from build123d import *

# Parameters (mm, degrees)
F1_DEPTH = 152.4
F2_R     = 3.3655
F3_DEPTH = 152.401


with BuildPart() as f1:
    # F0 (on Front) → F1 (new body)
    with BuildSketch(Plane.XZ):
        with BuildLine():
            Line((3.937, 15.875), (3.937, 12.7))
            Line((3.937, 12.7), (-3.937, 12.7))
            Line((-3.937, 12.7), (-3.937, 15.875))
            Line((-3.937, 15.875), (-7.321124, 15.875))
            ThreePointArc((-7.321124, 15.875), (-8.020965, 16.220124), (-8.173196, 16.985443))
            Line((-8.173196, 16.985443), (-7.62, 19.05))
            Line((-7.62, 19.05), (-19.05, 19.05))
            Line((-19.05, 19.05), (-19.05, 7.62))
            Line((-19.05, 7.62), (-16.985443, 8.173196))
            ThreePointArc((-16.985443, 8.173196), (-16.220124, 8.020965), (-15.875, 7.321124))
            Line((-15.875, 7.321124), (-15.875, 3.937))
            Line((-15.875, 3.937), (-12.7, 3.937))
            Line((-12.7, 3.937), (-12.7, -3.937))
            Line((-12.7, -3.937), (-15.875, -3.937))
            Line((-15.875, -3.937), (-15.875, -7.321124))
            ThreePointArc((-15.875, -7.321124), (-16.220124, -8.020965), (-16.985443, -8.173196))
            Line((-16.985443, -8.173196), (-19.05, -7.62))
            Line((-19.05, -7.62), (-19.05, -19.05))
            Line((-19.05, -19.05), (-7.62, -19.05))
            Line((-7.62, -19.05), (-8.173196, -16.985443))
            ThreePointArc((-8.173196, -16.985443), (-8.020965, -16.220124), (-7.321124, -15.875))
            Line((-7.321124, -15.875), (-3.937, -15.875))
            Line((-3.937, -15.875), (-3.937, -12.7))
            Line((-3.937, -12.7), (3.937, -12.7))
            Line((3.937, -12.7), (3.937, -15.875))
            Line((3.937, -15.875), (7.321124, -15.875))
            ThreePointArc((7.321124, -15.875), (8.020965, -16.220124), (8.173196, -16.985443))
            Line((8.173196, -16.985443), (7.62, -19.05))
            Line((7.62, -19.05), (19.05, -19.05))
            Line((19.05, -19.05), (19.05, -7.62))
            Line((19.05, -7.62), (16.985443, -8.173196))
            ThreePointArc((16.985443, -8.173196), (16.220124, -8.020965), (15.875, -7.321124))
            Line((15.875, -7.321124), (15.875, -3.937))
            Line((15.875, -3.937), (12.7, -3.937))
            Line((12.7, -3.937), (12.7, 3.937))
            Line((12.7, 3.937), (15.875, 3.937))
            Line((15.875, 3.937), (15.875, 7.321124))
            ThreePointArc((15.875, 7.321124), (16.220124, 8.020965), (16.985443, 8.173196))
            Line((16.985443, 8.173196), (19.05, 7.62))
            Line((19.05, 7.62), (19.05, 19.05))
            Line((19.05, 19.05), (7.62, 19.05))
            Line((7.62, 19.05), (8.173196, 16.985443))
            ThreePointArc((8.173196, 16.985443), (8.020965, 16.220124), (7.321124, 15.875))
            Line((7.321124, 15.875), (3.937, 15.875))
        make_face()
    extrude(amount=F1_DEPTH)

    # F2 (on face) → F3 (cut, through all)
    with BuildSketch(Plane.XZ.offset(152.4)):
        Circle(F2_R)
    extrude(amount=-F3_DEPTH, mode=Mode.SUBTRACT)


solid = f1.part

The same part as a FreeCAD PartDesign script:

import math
import FreeCAD as App
import Part
import Sketcher
from FreeCAD import Vector
Q = App.Units.Quantity

doc = App.newDocument("Part")
body = doc.addObject("PartDesign::Body", "Body")

# Sketch on XZ plane
sketch1 = body.newObject("Sketcher::SketchObject", "Sketch")
sketch1.AttachmentSupport = (doc.getObject("XZ_Plane"), [""])
sketch1.MapMode = "FlatFace"
sketch1.addGeometry([
    Part.LineSegment(Vector(3.9, 15.9, 0), Vector(3.9, 12.7, 0)),  # 0
    Part.LineSegment(Vector(3.9, 12.7, 0), Vector(-3.9, 12.7, 0)),  # 1
    Part.LineSegment(Vector(-3.9, 12.7, 0), Vector(-3.9, 15.9, 0)),  # 2
    Part.LineSegment(Vector(-3.9, 15.9, 0), Vector(-7.3, 15.9, 0)),  # 3
    Part.ArcOfCircle(Part.Circle(Vector(-7.3, 16.8, 0), Vector(0, 0, 1), 0.9), math.radians(165), math.radians(270)),  # 4
    Part.LineSegment(Vector(-8.2, 17, 0), Vector(-7.6, 19.1, 0)),  # 5
    Part.LineSegment(Vector(-7.6, 19.1, 0), Vector(-19.1, 19.1, 0)),  # 6
    Part.LineSegment(Vector(-19.1, 19.1, 0), Vector(-19.1, 7.6, 0)),  # 7
    Part.LineSegment(Vector(-19.1, 7.6, 0), Vector(-17, 8.2, 0)),  # 8
    Part.ArcOfCircle(Part.Circle(Vector(-16.8, 7.3, 0), Vector(0, 0, 1), 0.9), math.radians(0), math.radians(105)),  # 9
    Part.LineSegment(Vector(-15.9, 7.3, 0), Vector(-15.9, 3.9, 0)),  # 10
    Part.LineSegment(Vector(-15.9, 3.9, 0), Vector(-12.7, 3.9, 0)),  # 11
    Part.LineSegment(Vector(-12.7, 3.9, 0), Vector(-12.7, -3.9, 0)),  # 12
    Part.LineSegment(Vector(-12.7, -3.9, 0), Vector(-15.9, -3.9, 0)),  # 13
    Part.LineSegment(Vector(-15.9, -3.9, 0), Vector(-15.9, -7.3, 0)),  # 14
    Part.ArcOfCircle(Part.Circle(Vector(-16.8, -7.3, 0), Vector(0, 0, 1), 0.9), math.radians(-105), math.radians(0)),  # 15
    Part.LineSegment(Vector(-17, -8.2, 0), Vector(-19.1, -7.6, 0)),  # 16
    Part.LineSegment(Vector(-19.1, -7.6, 0), Vector(-19.1, -19.1, 0)),  # 17
    Part.LineSegment(Vector(-19.1, -19.1, 0), Vector(-7.6, -19.1, 0)),  # 18
    Part.LineSegment(Vector(-7.6, -19.1, 0), Vector(-8.2, -17, 0)),  # 19
    Part.ArcOfCircle(Part.Circle(Vector(-7.3, -16.8, 0), Vector(0, 0, 1), 0.9), math.radians(90), math.radians(195)),  # 20
    Part.LineSegment(Vector(-7.3, -15.9, 0), Vector(-3.9, -15.9, 0)),  # 21
    Part.LineSegment(Vector(-3.9, -15.9, 0), Vector(-3.9, -12.7, 0)),  # 22
    Part.LineSegment(Vector(-3.9, -12.7, 0), Vector(3.9, -12.7, 0)),  # 23
    Part.LineSegment(Vector(3.9, -12.7, 0), Vector(3.9, -15.9, 0)),  # 24
    Part.LineSegment(Vector(3.9, -15.9, 0), Vector(7.3, -15.9, 0)),  # 25
    Part.ArcOfCircle(Part.Circle(Vector(7.3, -16.8, 0), Vector(0, 0, 1), 0.9), math.radians(-15), math.radians(90)),  # 26
    Part.LineSegment(Vector(8.2, -17, 0), Vector(7.6, -19.1, 0)),  # 27
    Part.LineSegment(Vector(7.6, -19.1, 0), Vector(19.1, -19.1, 0)),  # 28
    Part.LineSegment(Vector(19.1, -19.1, 0), Vector(19.1, -7.6, 0)),  # 29
    Part.LineSegment(Vector(19.1, -7.6, 0), Vector(17, -8.2, 0)),  # 30
    Part.ArcOfCircle(Part.Circle(Vector(16.8, -7.3, 0), Vector(0, 0, 1), 0.9), math.radians(-180), math.radians(-75)),  # 31
    Part.LineSegment(Vector(15.9, -7.3, 0), Vector(15.9, -3.9, 0)),  # 32
    Part.LineSegment(Vector(15.9, -3.9, 0), Vector(12.7, -3.9, 0)),  # 33
    Part.LineSegment(Vector(12.7, -3.9, 0), Vector(12.7, 3.9, 0)),  # 34
    Part.LineSegment(Vector(12.7, 3.9, 0), Vector(15.9, 3.9, 0)),  # 35
    Part.LineSegment(Vector(15.9, 3.9, 0), Vector(15.9, 7.3, 0)),  # 36
    Part.ArcOfCircle(Part.Circle(Vector(16.8, 7.3, 0), Vector(0, 0, 1), 0.9), math.radians(75), math.radians(180)),  # 37
    Part.LineSegment(Vector(17, 8.2, 0), Vector(19.1, 7.6, 0)),  # 38
    Part.LineSegment(Vector(19.1, 7.6, 0), Vector(19.1, 19.1, 0)),  # 39
    Part.LineSegment(Vector(19.1, 19.1, 0), Vector(7.6, 19.1, 0)),  # 40
    Part.LineSegment(Vector(7.6, 19.1, 0), Vector(8.2, 17, 0)),  # 41
    Part.ArcOfCircle(Part.Circle(Vector(7.3, 16.8, 0), Vector(0, 0, 1), 0.9), math.radians(-90), math.radians(15)),  # 42
    Part.LineSegment(Vector(7.3, 15.9, 0), Vector(3.9, 15.9, 0)),  # 43
], False)
sketch1.addConstraint([
    Sketcher.Constraint("Coincident", 0, 2, 1, 1),
    Sketcher.Constraint("Coincident", 1, 2, 2, 1),
    Sketcher.Constraint("Coincident", 2, 2, 3, 1),
    Sketcher.Constraint("Tangent", 3, 2, 4, 2),
    Sketcher.Constraint("Tangent", 4, 1, 5, 1),
    Sketcher.Constraint("Coincident", 5, 2, 6, 1),
    Sketcher.Constraint("Coincident", 6, 2, 7, 1),
    Sketcher.Constraint("Coincident", 7, 2, 8, 1),
    Sketcher.Constraint("Tangent", 8, 2, 9, 2),
    Sketcher.Constraint("Tangent", 9, 1, 10, 1),
    Sketcher.Constraint("Coincident", 10, 2, 11, 1),
    Sketcher.Constraint("Coincident", 11, 2, 12, 1),
    Sketcher.Constraint("Coincident", 12, 2, 13, 1),
    Sketcher.Constraint("Coincident", 13, 2, 14, 1),
    Sketcher.Constraint("Tangent", 14, 2, 15, 2),
    Sketcher.Constraint("Tangent", 15, 1, 16, 1),
    Sketcher.Constraint("Coincident", 16, 2, 17, 1),
    Sketcher.Constraint("Coincident", 17, 2, 18, 1),
    Sketcher.Constraint("Coincident", 18, 2, 19, 1),
    Sketcher.Constraint("Tangent", 19, 2, 20, 2),
    Sketcher.Constraint("Tangent", 20, 1, 21, 1),
    Sketcher.Constraint("Coincident", 21, 2, 22, 1),
    Sketcher.Constraint("Coincident", 22, 2, 23, 1),
    Sketcher.Constraint("Coincident", 23, 2, 24, 1),
    Sketcher.Constraint("Coincident", 24, 2, 25, 1),
    Sketcher.Constraint("Tangent", 25, 2, 26, 2),
    Sketcher.Constraint("Tangent", 26, 1, 27, 1),
    Sketcher.Constraint("Coincident", 27, 2, 28, 1),
    Sketcher.Constraint("Coincident", 28, 2, 29, 1),
    Sketcher.Constraint("Coincident", 29, 2, 30, 1),
    Sketcher.Constraint("Tangent", 30, 2, 31, 2),
    Sketcher.Constraint("Tangent", 31, 1, 32, 1),
    Sketcher.Constraint("Coincident", 32, 2, 33, 1),
    Sketcher.Constraint("Coincident", 33, 2, 34, 1),
    Sketcher.Constraint("Coincident", 34, 2, 35, 1),
    Sketcher.Constraint("Coincident", 35, 2, 36, 1),
    Sketcher.Constraint("Tangent", 36, 2, 37, 2),
    Sketcher.Constraint("Tangent", 37, 1, 38, 1),
    Sketcher.Constraint("Coincident", 38, 2, 39, 1),
    Sketcher.Constraint("Coincident", 39, 2, 40, 1),
    Sketcher.Constraint("Coincident", 40, 2, 41, 1),
    Sketcher.Constraint("Tangent", 41, 2, 42, 2),
    Sketcher.Constraint("Tangent", 42, 1, 43, 1),
    Sketcher.Constraint("Coincident", 43, 2, 0, 1),
    Sketcher.Constraint("Vertical", 0),
    Sketcher.Constraint("Horizontal", 1),
    Sketcher.Constraint("Vertical", 2),
    Sketcher.Constraint("Horizontal", 3),
    Sketcher.Constraint("Horizontal", 6),
    Sketcher.Constraint("Vertical", 7),
    Sketcher.Constraint("Vertical", 10),
    Sketcher.Constraint("Horizontal", 11),
    Sketcher.Constraint("Vertical", 12),
    Sketcher.Constraint("Horizontal", 13),
    Sketcher.Constraint("Vertical", 14),
    Sketcher.Constraint("Vertical", 17),
    Sketcher.Constraint("Horizontal", 18),
    Sketcher.Constraint("Horizontal", 21),
    Sketcher.Constraint("Vertical", 22),
    Sketcher.Constraint("Horizontal", 23),
    Sketcher.Constraint("Vertical", 24),
    Sketcher.Constraint("Horizontal", 25),
    Sketcher.Constraint("Horizontal", 28),
    Sketcher.Constraint("Vertical", 29),
    Sketcher.Constraint("Vertical", 32),
    Sketcher.Constraint("Horizontal", 33),
    Sketcher.Constraint("Vertical", 34),
    Sketcher.Constraint("Horizontal", 35),
    Sketcher.Constraint("Vertical", 36),
    Sketcher.Constraint("Vertical", 39),
    Sketcher.Constraint("Horizontal", 40),
    Sketcher.Constraint("Horizontal", 43),
    Sketcher.Constraint("Equal", 4, 9),
    Sketcher.Constraint("Equal", 9, 15),
    Sketcher.Constraint("Equal", 15, 20),
    Sketcher.Constraint("Equal", 20, 26),
    Sketcher.Constraint("Equal", 26, 31),
    Sketcher.Constraint("Equal", 31, 37),
    Sketcher.Constraint("Equal", 37, 42),
    Sketcher.Constraint("Symmetric", 4, 3, 26, 3, -1, 1),
    Sketcher.Constraint("Symmetric", 9, 3, 31, 3, -1, 1),
    Sketcher.Constraint("Symmetric", 15, 3, 37, 3, -1, 1),
    Sketcher.Constraint("Symmetric", 20, 3, 42, 3, -1, 1),
    Sketcher.Constraint("Symmetric", 0, 2, 22, 2, -1, 1),
    Sketcher.Constraint("Symmetric", 5, 2, 27, 2, -1, 1),
    Sketcher.Constraint("Symmetric", 7, 2, 29, 2, -1, 1),
    Sketcher.Constraint("Symmetric", 11, 2, 33, 2, -1, 1),
    Sketcher.Constraint("Symmetric", 16, 2, 38, 2, -1, 1),
    Sketcher.Constraint("Symmetric", 18, 2, 40, 2, -1, 1),
    Sketcher.Constraint("Symmetric", 20, 3, 26, 3, -2),
    Sketcher.Constraint("Symmetric", 15, 3, 31, 3, -2),
    Sketcher.Constraint("Symmetric", 18, 2, 27, 2, -2),
    Sketcher.Constraint("Symmetric", 16, 2, 29, 2, -2),
    Sketcher.Constraint("Perpendicular", 5, 16),
    Sketcher.Constraint("Horizontal", 13, 2, 32, 2),
    Sketcher.Constraint("Horizontal", 11, 2, 34, 2),
    Sketcher.Constraint("Vertical", 2, 2, 21, 2),
    Sketcher.Constraint("Vertical", 0, 2, 23, 2),
    Sketcher.Constraint("Equal", 35, 0),
    Sketcher.Constraint("Equal", 40, 7),
    Sketcher.Constraint("Equal", 43, 10),
    Sketcher.Constraint("Equal", 23, 12),
    Sketcher.Constraint("Equal", 5, 8),
    Sketcher.Constraint("Angle", 5, Q("75.00001 deg")),
    Sketcher.Constraint("DistanceX", 1, 2, 1, 1, Q("0.31 in")),
    Sketcher.Constraint("DistanceX", 6, 2, 6, 1, Q("0.45 in")),
    Sketcher.Constraint("DistanceY", -1, 1, 0, 2, Q("0.5 in")),
    Sketcher.Constraint("DistanceX", 5, 2, -1, 1, Q("0.3 in")),
    Sketcher.Constraint("DistanceX", 11, 1, 11, 2, Q("0.125 in")),
    Sketcher.Constraint("Radius", 4, 0.882131),
])
pad1 = body.newObject("PartDesign::Pad", "Pad")
pad1.Profile = sketch1
pad1.Length = Q("6 in")

# Sketch on XZ plane
sketch2 = body.newObject("Sketcher::SketchObject", "Sketch001")
sketch2.AttachmentSupport = (doc.getObject("XZ_Plane"), [""])
sketch2.MapMode = "FlatFace"
sketch2.AttachmentOffset = App.Placement(Vector(0, 0, 6 * 25.4), App.Rotation())
sketch2.addGeometry(Part.Circle(Vector(0, 0, 0), Vector(0, 0, 1), 3.4), False)
sketch2.addConstraint([
    Sketcher.Constraint("Coincident", 0, 3, -1, 1),
    Sketcher.Constraint("Diameter", 0, Q("0.265 in")),
])
pocket1 = body.newObject("PartDesign::Pocket", "Pocket")
pocket1.Profile = sketch2
pocket1.Type = "ThroughAll"

doc.recompute()
